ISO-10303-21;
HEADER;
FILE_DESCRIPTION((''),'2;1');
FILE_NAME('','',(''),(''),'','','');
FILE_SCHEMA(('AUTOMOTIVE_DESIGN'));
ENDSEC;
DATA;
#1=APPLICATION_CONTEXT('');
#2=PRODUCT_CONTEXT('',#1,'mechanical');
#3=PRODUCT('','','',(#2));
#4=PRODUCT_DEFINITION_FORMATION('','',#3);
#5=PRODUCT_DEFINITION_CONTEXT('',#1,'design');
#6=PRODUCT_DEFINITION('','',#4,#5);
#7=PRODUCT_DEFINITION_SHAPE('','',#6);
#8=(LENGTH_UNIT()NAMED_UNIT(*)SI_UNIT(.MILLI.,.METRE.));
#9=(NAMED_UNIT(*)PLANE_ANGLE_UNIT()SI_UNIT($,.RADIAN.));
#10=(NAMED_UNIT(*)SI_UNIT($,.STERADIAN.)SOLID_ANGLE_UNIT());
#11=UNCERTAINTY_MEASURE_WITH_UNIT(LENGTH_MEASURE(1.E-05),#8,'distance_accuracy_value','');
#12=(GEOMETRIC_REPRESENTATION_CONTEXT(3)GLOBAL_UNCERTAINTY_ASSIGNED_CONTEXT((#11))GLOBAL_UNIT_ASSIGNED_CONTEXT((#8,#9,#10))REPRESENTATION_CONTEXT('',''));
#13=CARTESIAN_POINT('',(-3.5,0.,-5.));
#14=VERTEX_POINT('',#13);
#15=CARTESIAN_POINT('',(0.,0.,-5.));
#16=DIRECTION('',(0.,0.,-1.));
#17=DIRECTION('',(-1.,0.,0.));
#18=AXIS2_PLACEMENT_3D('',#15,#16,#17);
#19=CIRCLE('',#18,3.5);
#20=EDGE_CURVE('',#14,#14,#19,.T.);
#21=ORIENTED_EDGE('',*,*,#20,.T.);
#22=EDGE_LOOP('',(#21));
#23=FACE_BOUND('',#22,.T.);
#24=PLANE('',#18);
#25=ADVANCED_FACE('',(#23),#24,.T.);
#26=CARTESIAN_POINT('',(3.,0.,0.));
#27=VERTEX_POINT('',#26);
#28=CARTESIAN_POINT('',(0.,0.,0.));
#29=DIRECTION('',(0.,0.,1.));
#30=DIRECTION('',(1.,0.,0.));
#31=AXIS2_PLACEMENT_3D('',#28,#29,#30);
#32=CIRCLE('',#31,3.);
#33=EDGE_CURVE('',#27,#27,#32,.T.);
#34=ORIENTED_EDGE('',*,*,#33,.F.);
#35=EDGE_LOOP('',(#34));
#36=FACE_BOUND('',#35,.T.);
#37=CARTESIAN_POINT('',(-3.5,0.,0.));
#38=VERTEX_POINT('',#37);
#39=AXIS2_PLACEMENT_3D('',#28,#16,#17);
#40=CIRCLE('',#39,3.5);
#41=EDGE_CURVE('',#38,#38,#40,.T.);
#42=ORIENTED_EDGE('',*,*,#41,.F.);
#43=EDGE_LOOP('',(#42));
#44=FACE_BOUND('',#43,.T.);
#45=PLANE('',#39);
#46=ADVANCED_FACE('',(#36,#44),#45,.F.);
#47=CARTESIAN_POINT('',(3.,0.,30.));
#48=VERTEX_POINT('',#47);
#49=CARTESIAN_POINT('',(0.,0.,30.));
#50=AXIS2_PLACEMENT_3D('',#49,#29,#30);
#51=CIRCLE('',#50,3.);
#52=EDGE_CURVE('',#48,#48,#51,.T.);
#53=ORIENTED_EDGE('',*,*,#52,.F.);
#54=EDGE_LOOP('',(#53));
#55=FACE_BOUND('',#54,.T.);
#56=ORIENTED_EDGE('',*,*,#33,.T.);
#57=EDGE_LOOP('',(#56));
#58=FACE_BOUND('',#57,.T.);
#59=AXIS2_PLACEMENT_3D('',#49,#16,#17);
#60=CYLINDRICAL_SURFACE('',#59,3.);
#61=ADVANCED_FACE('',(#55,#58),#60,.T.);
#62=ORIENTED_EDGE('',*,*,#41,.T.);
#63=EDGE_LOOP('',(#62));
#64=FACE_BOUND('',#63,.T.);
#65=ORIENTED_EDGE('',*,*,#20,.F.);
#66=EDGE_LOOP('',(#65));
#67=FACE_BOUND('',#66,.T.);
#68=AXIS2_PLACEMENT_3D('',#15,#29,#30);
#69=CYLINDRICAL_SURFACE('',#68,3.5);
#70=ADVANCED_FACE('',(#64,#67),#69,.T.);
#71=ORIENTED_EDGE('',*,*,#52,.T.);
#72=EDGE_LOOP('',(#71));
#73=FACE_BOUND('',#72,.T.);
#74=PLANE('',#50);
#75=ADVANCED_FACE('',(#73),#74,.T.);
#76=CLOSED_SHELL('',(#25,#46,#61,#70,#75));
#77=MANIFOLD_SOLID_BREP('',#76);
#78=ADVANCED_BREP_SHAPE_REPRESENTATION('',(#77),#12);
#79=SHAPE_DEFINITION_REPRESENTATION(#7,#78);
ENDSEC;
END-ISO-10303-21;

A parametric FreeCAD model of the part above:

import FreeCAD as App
import Part
import Sketcher

doc = App.newDocument("Part")
body = doc.addObject("PartDesign::Body", "Body")

# Sketch on XY plane
sketch1 = body.newObject("Sketcher::SketchObject", "Sketch")
sketch1.AttachmentSupport = (doc.getObject("XY_Plane"), [""])
sketch1.MapMode = "FlatFace"
sketch1.addGeometry(Part.Circle(App.Vector(0, 0, 0), App.Vector(0, 0, 1), 3), False)
sketch1.addConstraint(Sketcher.Constraint("Coincident", 0, 3, -1, 1))
sketch1.addConstraint(Sketcher.Constraint("Diameter", 0, 6.0))
pad1 = body.newObject("PartDesign::Pad", "Pad")
pad1.Profile = sketch1
pad1.Length = 30

# Sketch on XY plane
sketch2 = body.newObject("Sketcher::SketchObject", "Sketch001")
sketch2.AttachmentSupport = (doc.getObject("XY_Plane"), [""])
sketch2.MapMode = "FlatFace"
sketch2.addGeometry(Part.Circle(App.Vector(0, 0, 0), App.Vector(0, 0, 1), 3.5), False)
sketch2.addConstraint(Sketcher.Constraint("Coincident", 0, 3, -1, 1))
sketch2.addConstraint(Sketcher.Constraint("Diameter", 0, 7.0))
pad2 = body.newObject("PartDesign::Pad", "Pad001")
pad2.Profile = sketch2
pad2.Length = 5
pad2.Reversed = True

doc.recompute()
